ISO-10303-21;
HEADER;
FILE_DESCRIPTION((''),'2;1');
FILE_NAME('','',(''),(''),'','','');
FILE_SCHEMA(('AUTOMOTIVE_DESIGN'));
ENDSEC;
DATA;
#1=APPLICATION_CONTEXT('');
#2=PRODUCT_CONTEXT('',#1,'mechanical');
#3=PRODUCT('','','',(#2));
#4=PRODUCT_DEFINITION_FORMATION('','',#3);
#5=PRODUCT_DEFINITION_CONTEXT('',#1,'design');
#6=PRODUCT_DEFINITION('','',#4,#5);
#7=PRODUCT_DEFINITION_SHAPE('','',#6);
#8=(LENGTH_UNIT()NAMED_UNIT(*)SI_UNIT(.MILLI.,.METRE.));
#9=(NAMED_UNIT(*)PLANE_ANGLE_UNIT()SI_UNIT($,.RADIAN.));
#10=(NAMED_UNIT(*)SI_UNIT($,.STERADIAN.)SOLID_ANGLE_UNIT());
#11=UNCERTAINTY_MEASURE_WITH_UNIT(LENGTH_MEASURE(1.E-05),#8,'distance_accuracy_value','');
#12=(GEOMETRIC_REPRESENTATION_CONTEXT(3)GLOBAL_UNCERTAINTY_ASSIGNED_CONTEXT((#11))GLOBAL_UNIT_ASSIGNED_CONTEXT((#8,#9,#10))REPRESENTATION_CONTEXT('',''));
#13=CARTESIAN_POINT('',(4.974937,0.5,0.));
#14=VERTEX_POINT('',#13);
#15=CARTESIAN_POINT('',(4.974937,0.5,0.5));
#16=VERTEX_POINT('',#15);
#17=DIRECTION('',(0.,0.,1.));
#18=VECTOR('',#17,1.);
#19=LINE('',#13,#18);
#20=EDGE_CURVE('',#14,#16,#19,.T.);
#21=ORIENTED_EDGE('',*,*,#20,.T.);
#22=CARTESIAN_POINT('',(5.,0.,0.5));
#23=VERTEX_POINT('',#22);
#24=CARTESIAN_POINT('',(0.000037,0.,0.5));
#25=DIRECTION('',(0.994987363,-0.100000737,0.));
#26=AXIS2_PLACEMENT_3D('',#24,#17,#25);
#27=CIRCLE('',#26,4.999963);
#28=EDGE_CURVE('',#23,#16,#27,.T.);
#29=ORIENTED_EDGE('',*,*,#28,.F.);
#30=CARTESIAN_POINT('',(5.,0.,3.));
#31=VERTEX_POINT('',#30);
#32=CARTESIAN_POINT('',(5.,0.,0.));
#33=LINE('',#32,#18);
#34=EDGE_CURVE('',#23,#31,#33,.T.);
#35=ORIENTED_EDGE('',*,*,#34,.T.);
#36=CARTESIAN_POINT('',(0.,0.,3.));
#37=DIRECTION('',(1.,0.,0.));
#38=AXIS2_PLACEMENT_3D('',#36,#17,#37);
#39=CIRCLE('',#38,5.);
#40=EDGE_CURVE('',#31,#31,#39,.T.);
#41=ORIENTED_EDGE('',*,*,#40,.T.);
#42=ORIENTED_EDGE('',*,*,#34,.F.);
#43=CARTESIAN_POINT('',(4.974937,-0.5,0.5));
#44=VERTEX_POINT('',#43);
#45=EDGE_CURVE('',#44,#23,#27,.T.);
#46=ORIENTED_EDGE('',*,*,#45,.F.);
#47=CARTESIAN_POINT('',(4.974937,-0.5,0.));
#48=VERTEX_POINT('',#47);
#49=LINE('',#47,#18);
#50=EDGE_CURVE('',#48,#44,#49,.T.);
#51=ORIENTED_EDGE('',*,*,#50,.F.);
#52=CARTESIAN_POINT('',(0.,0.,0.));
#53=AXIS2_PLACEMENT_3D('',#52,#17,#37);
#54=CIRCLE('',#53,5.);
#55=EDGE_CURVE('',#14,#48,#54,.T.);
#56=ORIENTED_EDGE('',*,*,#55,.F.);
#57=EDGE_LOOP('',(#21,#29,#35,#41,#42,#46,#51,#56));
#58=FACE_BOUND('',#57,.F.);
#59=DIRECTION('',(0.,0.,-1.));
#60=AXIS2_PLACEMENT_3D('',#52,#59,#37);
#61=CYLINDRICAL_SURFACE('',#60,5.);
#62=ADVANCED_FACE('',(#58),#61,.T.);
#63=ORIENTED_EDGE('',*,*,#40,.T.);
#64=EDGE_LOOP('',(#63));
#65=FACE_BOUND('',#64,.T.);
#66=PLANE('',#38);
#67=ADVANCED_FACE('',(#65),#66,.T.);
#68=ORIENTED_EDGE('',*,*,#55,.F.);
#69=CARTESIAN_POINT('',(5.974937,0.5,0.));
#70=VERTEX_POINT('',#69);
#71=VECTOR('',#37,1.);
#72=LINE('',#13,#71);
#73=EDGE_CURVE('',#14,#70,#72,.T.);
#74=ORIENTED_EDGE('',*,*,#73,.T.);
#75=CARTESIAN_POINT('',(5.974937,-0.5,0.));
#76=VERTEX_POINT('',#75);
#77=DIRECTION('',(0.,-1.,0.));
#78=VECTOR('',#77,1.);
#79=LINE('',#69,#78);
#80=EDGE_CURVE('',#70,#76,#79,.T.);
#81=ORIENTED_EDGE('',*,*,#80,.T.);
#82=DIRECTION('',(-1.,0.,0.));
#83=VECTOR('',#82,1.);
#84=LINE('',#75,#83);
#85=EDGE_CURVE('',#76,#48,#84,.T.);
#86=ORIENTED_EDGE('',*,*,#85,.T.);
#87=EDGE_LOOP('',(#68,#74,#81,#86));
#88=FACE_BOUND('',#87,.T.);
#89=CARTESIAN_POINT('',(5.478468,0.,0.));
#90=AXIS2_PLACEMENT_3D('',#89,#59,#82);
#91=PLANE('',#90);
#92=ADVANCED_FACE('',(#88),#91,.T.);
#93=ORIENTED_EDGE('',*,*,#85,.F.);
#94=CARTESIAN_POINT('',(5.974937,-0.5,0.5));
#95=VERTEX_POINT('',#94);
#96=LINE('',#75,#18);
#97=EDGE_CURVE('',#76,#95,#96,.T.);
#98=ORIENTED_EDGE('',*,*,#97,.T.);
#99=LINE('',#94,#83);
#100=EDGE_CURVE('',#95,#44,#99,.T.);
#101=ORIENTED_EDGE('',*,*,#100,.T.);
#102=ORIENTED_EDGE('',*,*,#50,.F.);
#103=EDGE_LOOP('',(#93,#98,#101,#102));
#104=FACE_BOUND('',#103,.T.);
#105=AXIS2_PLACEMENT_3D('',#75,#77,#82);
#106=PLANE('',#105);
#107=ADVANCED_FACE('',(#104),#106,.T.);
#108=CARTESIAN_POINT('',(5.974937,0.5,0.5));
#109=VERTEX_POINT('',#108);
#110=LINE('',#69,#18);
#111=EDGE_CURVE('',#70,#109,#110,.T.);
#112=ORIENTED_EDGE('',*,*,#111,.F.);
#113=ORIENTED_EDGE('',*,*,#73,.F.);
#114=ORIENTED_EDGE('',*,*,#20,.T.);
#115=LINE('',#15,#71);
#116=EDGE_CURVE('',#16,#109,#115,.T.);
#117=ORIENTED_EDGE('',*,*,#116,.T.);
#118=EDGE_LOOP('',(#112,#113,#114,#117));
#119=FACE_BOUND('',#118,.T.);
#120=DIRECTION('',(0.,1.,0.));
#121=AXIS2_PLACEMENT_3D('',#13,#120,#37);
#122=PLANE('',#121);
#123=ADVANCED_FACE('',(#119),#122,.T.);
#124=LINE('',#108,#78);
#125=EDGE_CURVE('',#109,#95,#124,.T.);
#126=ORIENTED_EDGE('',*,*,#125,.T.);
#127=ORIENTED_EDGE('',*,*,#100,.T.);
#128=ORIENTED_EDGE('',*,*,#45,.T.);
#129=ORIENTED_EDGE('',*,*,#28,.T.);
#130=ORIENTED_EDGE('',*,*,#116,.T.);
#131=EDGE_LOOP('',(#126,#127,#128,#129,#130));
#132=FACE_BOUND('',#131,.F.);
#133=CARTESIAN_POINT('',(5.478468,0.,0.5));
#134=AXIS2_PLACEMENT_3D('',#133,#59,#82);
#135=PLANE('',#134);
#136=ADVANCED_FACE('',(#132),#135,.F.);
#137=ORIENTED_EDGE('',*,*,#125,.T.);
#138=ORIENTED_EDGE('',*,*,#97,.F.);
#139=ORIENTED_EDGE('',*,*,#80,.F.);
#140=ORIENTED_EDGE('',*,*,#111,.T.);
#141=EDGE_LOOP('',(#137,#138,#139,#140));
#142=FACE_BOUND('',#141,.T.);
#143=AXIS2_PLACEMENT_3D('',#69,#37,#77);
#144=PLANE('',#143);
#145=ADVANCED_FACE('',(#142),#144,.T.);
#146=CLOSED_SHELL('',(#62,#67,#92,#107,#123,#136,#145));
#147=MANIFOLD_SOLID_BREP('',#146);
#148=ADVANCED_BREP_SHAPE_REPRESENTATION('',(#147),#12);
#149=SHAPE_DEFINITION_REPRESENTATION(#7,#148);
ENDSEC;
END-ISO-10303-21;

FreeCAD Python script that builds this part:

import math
import FreeCAD as App
import Part
import Sketcher
Q = App.Units.Quantity

doc = App.newDocument("Part")
body = doc.addObject("PartDesign::Body", "Body")

# Sketch on XY plane
sketch1 = body.newObject("Sketcher::SketchObject", "Sketch")
sketch1.AttachmentSupport = (doc.getObject("XY_Plane"), [""])
sketch1.MapMode = "FlatFace"
sketch1.addGeometry(Part.Circle(App.Vector(0, 0, 0), App.Vector(0, 0, 1), 5), False)
sketch1.addConstraint(Sketcher.Constraint("Coincident", 0, 3, -1, 1))
sketch1.addConstraint(Sketcher.Constraint("Diameter", 0, Q("10 mm")))
pad1 = body.newObject("PartDesign::Pad", "Pad")
pad1.Profile = sketch1
pad1.Length = 3

# Sketch on XY plane
sketch2 = body.newObject("Sketcher::SketchObject", "Sketch001")
sketch2.AttachmentSupport = (doc.getObject("XY_Plane"), [""])
sketch2.MapMode = "FlatFace"
sketch2.addGeometry(Part.LineSegment(App.Vector(6, 0.5, 0), App.Vector(5, 0.5, 0)), False)
sketch2.addGeometry(Part.ArcOfCircle(Part.Circle(App.Vector(0, 0, 0), App.Vector(0, 0, 1), 5), math.radians(-5.74), math.radians(5.74)), False)
sketch2.addGeometry(Part.LineSegment(App.Vector(5, -0.5, 0), App.Vector(6, -0.5, 0)), False)
sketch2.addGeometry(Part.LineSegment(App.Vector(6, -0.5, 0), App.Vector(6, 0.5, 0)), False)
sketch2.addConstraint(Sketcher.Constraint("Coincident", 0, 2, 1, 2))
sketch2.addConstraint(Sketcher.Constraint("Coincident", 1, 1, 2, 1))
sketch2.addConstraint(Sketcher.Constraint("Coincident", 2, 2, 3, 1))
sketch2.addConstraint(Sketcher.Constraint("Coincident", 3, 2, 0, 1))
sketch2.addConstraint(Sketcher.Constraint("Horizontal", 0))
sketch2.addConstraint(Sketcher.Constraint("Horizontal", 2))
sketch2.addConstraint(Sketcher.Constraint("Vertical", 3))
sketch2.addConstraint(Sketcher.Constraint("Symmetric", 0, 2, 1, 1, -1))
sketch2.addConstraint(Sketcher.Constraint("Equal", 2, 3))
sketch2.addConstraint(Sketcher.Constraint("DistanceX", 0, 2, 0, 1, Q("1 mm")))
sketch2.addConstraint(Sketcher.Constraint("Radius", 1, Q("4.999963 mm")))
sketch2.addConstraint(Sketcher.Constraint("DistanceX", -1, 1, 0, 2, Q("4.974937 mm")))
pad2 = body.newObject("PartDesign::Pad", "Pad001")
pad2.Profile = sketch2
pad2.Length = 0.5

doc.recompute()
